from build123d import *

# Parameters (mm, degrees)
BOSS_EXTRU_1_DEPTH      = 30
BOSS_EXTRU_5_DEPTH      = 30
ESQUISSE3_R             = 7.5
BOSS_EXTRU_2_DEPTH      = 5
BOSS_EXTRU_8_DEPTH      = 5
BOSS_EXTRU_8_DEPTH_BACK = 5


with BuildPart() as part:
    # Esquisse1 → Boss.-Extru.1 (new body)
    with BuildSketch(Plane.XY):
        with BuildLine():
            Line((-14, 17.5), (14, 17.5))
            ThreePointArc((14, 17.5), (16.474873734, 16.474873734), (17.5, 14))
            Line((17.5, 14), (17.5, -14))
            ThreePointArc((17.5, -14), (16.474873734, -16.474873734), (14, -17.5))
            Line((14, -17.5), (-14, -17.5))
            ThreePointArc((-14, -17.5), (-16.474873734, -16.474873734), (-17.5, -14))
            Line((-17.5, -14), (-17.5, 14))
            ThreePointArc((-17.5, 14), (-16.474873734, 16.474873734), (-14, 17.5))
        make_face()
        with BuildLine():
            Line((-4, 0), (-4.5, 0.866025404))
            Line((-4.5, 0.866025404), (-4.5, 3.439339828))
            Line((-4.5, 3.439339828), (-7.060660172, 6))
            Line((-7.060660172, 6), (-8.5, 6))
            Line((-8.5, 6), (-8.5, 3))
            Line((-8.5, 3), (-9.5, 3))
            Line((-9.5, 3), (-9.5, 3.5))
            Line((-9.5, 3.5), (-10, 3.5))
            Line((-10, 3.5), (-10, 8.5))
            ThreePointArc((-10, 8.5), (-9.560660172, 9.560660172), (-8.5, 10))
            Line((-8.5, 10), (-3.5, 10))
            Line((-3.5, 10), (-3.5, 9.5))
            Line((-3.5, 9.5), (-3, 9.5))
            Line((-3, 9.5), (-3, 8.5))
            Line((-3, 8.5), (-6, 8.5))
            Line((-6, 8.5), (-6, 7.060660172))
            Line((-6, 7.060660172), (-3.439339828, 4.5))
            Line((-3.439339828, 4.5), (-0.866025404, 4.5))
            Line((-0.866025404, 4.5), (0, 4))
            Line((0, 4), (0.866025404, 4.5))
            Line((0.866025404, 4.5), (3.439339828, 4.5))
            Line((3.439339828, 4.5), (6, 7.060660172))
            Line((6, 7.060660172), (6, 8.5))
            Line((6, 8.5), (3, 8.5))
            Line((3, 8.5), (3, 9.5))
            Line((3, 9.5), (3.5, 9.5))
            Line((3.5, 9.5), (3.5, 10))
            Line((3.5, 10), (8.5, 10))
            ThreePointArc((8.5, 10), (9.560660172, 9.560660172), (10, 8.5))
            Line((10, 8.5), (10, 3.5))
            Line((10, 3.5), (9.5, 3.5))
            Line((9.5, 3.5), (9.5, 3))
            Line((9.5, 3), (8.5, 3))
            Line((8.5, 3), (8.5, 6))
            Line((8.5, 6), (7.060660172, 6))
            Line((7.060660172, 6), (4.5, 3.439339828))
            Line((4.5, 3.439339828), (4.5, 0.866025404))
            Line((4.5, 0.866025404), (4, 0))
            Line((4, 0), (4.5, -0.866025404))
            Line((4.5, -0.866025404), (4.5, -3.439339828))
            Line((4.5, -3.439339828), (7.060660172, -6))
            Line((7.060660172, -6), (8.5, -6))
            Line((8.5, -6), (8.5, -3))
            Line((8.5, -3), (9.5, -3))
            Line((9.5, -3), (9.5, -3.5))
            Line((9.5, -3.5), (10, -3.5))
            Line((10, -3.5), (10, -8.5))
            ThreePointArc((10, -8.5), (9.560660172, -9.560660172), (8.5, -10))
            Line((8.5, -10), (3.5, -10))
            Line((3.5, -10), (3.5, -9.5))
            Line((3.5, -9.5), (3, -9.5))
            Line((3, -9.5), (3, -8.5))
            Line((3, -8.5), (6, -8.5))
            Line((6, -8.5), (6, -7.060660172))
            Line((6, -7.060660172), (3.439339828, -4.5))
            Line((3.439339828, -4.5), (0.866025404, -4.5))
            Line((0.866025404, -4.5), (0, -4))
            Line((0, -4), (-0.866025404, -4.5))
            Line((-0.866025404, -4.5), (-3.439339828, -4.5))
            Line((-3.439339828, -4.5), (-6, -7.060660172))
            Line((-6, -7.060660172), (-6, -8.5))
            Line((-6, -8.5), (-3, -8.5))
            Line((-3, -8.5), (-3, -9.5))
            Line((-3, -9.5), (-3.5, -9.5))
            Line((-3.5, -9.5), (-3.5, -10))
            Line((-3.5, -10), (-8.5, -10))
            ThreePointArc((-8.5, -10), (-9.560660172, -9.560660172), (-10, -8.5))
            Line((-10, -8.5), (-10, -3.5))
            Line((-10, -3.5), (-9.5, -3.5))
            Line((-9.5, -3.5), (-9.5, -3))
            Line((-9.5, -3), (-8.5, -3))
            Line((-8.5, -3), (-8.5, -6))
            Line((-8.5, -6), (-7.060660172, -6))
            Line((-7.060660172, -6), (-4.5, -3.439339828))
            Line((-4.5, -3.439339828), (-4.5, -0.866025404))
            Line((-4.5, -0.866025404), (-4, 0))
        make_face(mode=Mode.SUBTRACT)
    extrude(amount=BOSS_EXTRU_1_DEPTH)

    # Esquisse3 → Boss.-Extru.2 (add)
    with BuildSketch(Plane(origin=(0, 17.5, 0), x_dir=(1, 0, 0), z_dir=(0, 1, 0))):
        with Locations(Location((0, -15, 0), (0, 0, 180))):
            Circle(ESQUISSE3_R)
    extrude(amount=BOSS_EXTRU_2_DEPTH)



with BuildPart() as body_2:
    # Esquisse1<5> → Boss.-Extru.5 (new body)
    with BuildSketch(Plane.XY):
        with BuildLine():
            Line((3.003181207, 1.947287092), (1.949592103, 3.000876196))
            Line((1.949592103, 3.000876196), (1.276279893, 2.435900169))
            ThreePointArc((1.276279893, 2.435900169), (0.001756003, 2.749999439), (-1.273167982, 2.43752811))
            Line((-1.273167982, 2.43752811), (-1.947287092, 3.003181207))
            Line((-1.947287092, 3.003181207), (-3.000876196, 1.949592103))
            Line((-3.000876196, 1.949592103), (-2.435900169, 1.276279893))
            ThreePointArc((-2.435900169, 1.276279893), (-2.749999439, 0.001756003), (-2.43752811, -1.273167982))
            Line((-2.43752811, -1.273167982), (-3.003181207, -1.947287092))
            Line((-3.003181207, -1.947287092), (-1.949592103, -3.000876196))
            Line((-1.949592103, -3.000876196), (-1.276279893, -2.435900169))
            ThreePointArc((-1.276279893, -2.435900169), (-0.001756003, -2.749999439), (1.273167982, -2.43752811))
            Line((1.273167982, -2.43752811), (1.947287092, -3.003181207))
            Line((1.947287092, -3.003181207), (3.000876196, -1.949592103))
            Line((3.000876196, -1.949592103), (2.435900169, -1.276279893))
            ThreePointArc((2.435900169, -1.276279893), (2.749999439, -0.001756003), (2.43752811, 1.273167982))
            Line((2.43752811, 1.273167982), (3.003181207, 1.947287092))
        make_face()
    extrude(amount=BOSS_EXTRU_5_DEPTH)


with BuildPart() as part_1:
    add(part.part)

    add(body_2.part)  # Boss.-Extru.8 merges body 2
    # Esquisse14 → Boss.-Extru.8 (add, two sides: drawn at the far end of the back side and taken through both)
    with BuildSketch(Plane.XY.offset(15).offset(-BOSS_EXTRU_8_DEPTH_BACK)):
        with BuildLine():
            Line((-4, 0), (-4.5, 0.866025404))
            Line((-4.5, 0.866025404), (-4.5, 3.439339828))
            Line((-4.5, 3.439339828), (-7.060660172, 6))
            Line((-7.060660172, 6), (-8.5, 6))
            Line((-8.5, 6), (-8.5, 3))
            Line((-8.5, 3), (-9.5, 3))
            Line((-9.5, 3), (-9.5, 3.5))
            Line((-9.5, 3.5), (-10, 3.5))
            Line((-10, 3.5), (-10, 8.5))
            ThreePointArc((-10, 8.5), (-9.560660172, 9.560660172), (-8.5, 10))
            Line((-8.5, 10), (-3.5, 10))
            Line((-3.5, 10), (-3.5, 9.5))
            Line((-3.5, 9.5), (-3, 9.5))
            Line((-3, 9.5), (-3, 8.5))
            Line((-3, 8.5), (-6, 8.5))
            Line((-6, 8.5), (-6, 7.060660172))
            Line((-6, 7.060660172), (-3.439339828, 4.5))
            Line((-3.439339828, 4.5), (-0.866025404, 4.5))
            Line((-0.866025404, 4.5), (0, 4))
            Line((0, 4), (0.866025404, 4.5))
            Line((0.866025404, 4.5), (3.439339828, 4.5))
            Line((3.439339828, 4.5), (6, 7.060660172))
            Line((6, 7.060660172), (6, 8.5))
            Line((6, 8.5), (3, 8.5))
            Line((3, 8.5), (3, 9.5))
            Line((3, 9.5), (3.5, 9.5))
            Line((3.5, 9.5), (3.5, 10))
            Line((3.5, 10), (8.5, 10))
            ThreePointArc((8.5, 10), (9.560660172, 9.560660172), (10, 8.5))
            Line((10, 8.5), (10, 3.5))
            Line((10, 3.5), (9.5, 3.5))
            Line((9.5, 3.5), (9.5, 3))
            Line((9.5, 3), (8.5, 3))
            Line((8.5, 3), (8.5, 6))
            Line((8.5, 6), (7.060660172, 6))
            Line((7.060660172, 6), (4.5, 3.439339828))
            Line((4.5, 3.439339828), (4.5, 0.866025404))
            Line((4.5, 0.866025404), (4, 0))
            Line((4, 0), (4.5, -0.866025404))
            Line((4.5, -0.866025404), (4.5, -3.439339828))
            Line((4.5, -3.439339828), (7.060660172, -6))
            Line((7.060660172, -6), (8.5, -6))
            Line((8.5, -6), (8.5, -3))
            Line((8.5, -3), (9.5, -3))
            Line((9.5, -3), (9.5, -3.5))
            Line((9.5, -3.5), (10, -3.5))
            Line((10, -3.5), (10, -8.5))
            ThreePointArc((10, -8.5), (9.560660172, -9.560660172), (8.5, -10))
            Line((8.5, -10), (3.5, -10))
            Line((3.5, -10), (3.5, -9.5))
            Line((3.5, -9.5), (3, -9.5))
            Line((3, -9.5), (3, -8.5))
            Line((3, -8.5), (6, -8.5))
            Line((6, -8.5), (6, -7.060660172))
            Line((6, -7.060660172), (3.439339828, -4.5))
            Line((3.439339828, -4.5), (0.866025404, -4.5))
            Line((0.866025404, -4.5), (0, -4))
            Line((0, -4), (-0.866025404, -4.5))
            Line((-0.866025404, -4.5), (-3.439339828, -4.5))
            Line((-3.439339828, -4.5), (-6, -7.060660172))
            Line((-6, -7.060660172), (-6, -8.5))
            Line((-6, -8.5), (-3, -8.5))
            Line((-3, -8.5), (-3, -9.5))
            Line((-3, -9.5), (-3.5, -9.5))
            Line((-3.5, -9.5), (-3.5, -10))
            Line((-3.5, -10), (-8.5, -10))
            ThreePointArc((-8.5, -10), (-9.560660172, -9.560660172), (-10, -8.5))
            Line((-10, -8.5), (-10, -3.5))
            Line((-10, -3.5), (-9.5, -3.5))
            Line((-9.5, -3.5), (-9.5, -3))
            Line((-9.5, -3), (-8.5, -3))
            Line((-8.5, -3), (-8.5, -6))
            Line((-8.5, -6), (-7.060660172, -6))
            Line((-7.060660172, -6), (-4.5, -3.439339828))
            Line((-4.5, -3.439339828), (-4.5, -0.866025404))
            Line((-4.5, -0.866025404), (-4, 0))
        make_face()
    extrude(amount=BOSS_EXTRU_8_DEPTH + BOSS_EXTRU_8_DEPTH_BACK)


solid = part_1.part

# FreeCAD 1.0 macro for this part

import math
import FreeCAD as App
import Part
import Sketcher

V = App.Vector
Q = App.Units.Quantity

doc = App.newDocument("Part")
body = doc.addObject("PartDesign::Body", "Body")

sketch1 = doc.addObject("Sketcher::SketchObject", "Sketch")
body.addObject(sketch1)
sketch1.AttachmentSupport = (doc.XY_Plane, [""])
sketch1.MapMode = "FlatFace"
sketch1.addGeometry([
    Part.LineSegment(V(14, 17.5, 0), V(-14, 17.5, 0)),
    Part.ArcOfCircle(Part.Circle(V(-14, 14, 0), V(0, 0, 1), 3.5), math.radians(90), math.radians(180)),
    Part.LineSegment(V(-17.5, 14, 0), V(-17.5, -14, 0)),
    Part.ArcOfCircle(Part.Circle(V(-14, -14, 0), V(0, 0, 1), 3.5), math.radians(-180), math.radians(-90)),
    Part.LineSegment(V(-14, -17.5, 0), V(14, -17.5, 0)),
    Part.ArcOfCircle(Part.Circle(V(14, -14, 0), V(0, 0, 1), 3.5), math.radians(-90), math.radians(0)),
    Part.LineSegment(V(17.5, -14, 0), V(17.5, 14, 0)),
    Part.ArcOfCircle(Part.Circle(V(14, 14, 0), V(0, 0, 1), 3.5), math.radians(0), math.radians(90)),
    Part.LineSegment(V(-4, 0, 0), V(-4.5, 0.866025, 0)),
    Part.LineSegment(V(-4.5, 0.866025, 0), V(-4.5, 3.43934, 0)),
    Part.LineSegment(V(-4.5, 3.43934, 0), V(-7.06066, 6, 0)),
    Part.LineSegment(V(-7.06066, 6, 0), V(-8.5, 6, 0)),
    Part.LineSegment(V(-8.5, 6, 0), V(-8.5, 3, 0)),
    Part.LineSegment(V(-8.5, 3, 0), V(-9.5, 3, 0)),
    Part.LineSegment(V(-9.5, 3, 0), V(-9.5, 3.5, 0)),
    Part.LineSegment(V(-9.5, 3.5, 0), V(-10, 3.5, 0)),
    Part.LineSegment(V(-10, 3.5, 0), V(-10, 8.5, 0)),
    Part.ArcOfCircle(Part.Circle(V(-8.5, 8.5, 0), V(0, 0, 1), 1.5), math.radians(90), math.radians(180)),
    Part.LineSegment(V(-8.5, 10, 0), V(-3.5, 10, 0)),
    Part.LineSegment(V(-3.5, 10, 0), V(-3.5, 9.5, 0)),
    Part.LineSegment(V(-3.5, 9.5, 0), V(-3, 9.5, 0)),
    Part.LineSegment(V(-3, 9.5, 0), V(-3, 8.5, 0)),
    Part.LineSegment(V(-3, 8.5, 0), V(-6, 8.5, 0)),
    Part.LineSegment(V(-6, 8.5, 0), V(-6, 7.06066, 0)),
    Part.LineSegment(V(-6, 7.06066, 0), V(-3.43934, 4.5, 0)),
    Part.LineSegment(V(-3.43934, 4.5, 0), V(-0.866025, 4.5, 0)),
    Part.LineSegment(V(-0.866025, 4.5, 0), V(0, 4, 0)),
    Part.LineSegment(V(0, 4, 0), V(0.866025, 4.5, 0)),
    Part.LineSegment(V(0.866025, 4.5, 0), V(3.43934, 4.5, 0)),
    Part.LineSegment(V(3.43934, 4.5, 0), V(6, 7.06066, 0)),
    Part.LineSegment(V(6, 7.06066, 0), V(6, 8.5, 0)),
    Part.LineSegment(V(6, 8.5, 0), V(3, 8.5, 0)),
    Part.LineSegment(V(3, 8.5, 0), V(3, 9.5, 0)),
    Part.LineSegment(V(3, 9.5, 0), V(3.5, 9.5, 0)),
    Part.LineSegment(V(3.5, 9.5, 0), V(3.5, 10, 0)),
    Part.LineSegment(V(3.5, 10, 0), V(8.5, 10, 0)),
    Part.ArcOfCircle(Part.Circle(V(8.5, 8.5, 0), V(0, 0, 1), 1.5), math.radians(0), math.radians(90)),
    Part.LineSegment(V(10, 8.5, 0), V(10, 3.5, 0)),
    Part.LineSegment(V(10, 3.5, 0), V(9.5, 3.5, 0)),
    Part.LineSegment(V(9.5, 3.5, 0), V(9.5, 3, 0)),
    Part.LineSegment(V(9.5, 3, 0), V(8.5, 3, 0)),
    Part.LineSegment(V(8.5, 3, 0), V(8.5, 6, 0)),
    Part.LineSegment(V(8.5, 6, 0), V(7.06066, 6, 0)),
    Part.LineSegment(V(7.06066, 6, 0), V(4.5, 3.43934, 0)),
    Part.LineSegment(V(4.5, 3.43934, 0), V(4.5, 0.866025, 0)),
    Part.LineSegment(V(4.5, 0.866025, 0), V(4, 0, 0)),
    Part.LineSegment(V(4, 0, 0), V(4.5, -0.866025, 0)),
    Part.LineSegment(V(4.5, -0.866025, 0), V(4.5, -3.43934, 0)),
    Part.LineSegment(V(4.5, -3.43934, 0), V(7.06066, -6, 0)),
    Part.LineSegment(V(7.06066, -6, 0), V(8.5, -6, 0)),
    Part.LineSegment(V(8.5, -6, 0), V(8.5, -3, 0)),
    Part.LineSegment(V(8.5, -3, 0), V(9.5, -3, 0)),
    Part.LineSegment(V(9.5, -3, 0), V(9.5, -3.5, 0)),
    Part.LineSegment(V(9.5, -3.5, 0), V(10, -3.5, 0)),
    Part.LineSegment(V(10, -3.5, 0), V(10, -8.5, 0)),
    Part.ArcOfCircle(Part.Circle(V(8.5, -8.5, 0), V(0, 0, 1), 1.5), math.radians(-90), math.radians(0)),
    Part.LineSegment(V(8.5, -10, 0), V(3.5, -10, 0)),
    Part.LineSegment(V(3.5, -10, 0), V(3.5, -9.5, 0)),
    Part.LineSegment(V(3.5, -9.5, 0), V(3, -9.5, 0)),
    Part.LineSegment(V(3, -9.5, 0), V(3, -8.5, 0)),
    Part.LineSegment(V(3, -8.5, 0), V(6, -8.5, 0)),
    Part.LineSegment(V(6, -8.5, 0), V(6, -7.06066, 0)),
    Part.LineSegment(V(6, -7.06066, 0), V(3.43934, -4.5, 0)),
    Part.LineSegment(V(3.43934, -4.5, 0), V(0.866025, -4.5, 0)),
    Part.LineSegment(V(0.866025, -4.5, 0), V(0, -4, 0)),
    Part.LineSegment(V(0, -4, 0), V(-0.866025, -4.5, 0)),
    Part.LineSegment(V(-0.866025, -4.5, 0), V(-3.43934, -4.5, 0)),
    Part.LineSegment(V(-3.43934, -4.5, 0), V(-6, -7.06066, 0)),
    Part.LineSegment(V(-6, -7.06066, 0), V(-6, -8.5, 0)),
    Part.LineSegment(V(-6, -8.5, 0), V(-3, -8.5, 0)),
    Part.LineSegment(V(-3, -8.5, 0), V(-3, -9.5, 0)),
    Part.LineSegment(V(-3, -9.5, 0), V(-3.5, -9.5, 0)),
    Part.LineSegment(V(-3.5, -9.5, 0), V(-3.5, -10, 0)),
    Part.LineSegment(V(-3.5, -10, 0), V(-8.5, -10, 0)),
    Part.ArcOfCircle(Part.Circle(V(-8.5, -8.5, 0), V(0, 0, 1), 1.5), math.radians(180), math.radians(270)),
    Part.LineSegment(V(-10, -8.5, 0), V(-10, -3.5, 0)),
    Part.LineSegment(V(-10, -3.5, 0), V(-9.5, -3.5, 0)),
    Part.LineSegment(V(-9.5, -3.5, 0), V(-9.5, -3, 0)),
    Part.LineSegment(V(-9.5, -3, 0), V(-8.5, -3, 0)),
    Part.LineSegment(V(-8.5, -3, 0), V(-8.5, -6, 0)),
    Part.LineSegment(V(-8.5, -6, 0), V(-7.06066, -6, 0)),
    Part.LineSegment(V(-7.06066, -6, 0), V(-4.5, -3.43934, 0)),
    Part.LineSegment(V(-4.5, -3.43934, 0), V(-4.5, -0.866025, 0)),
    Part.LineSegment(V(-4.5, -0.866025, 0), V(-4, 0, 0)),
], False)
sketch1.addConstraint([
    Sketcher.Constraint("Tangent", 0, 2, 1, 1),
    Sketcher.Constraint("Tangent", 1, 2, 2, 1),
    Sketcher.Constraint("Tangent", 2, 2, 3, 1),
    Sketcher.Constraint("Tangent", 3, 2, 4, 1),
    Sketcher.Constraint("Tangent", 4, 2, 5, 1),
    Sketcher.Constraint("Tangent", 5, 2, 6, 1),
    Sketcher.Constraint("Tangent", 6, 2, 7, 1),
    Sketcher.Constraint("Tangent", 7, 2, 0, 1),
    Sketcher.Constraint("Coincident", 8, 2, 9, 1),
    Sketcher.Constraint("Coincident", 9, 2, 10, 1),
    Sketcher.Constraint("Coincident", 10, 2, 11, 1),
    Sketcher.Constraint("Coincident", 11, 2, 12, 1),
    Sketcher.Constraint("Coincident", 12, 2, 13, 1),
    Sketcher.Constraint("Coincident", 13, 2, 14, 1),
    Sketcher.Constraint("Coincident", 14, 2, 15, 1),
    Sketcher.Constraint("Coincident", 15, 2, 16, 1),
    Sketcher.Constraint("Tangent", 16, 2, 17, 2),
    Sketcher.Constraint("Tangent", 17, 1, 18, 1),
    Sketcher.Constraint("Coincident", 18, 2, 19, 1),
    Sketcher.Constraint("Coincident", 19, 2, 20, 1),
    Sketcher.Constraint("Coincident", 20, 2, 21, 1),
    Sketcher.Constraint("Coincident", 21, 2, 22, 1),
    Sketcher.Constraint("Coincident", 22, 2, 23, 1),
    Sketcher.Constraint("Coincident", 23, 2, 24, 1),
    Sketcher.Constraint("Coincident", 24, 2, 25, 1),
    Sketcher.Constraint("Coincident", 25, 2, 26, 1),
    Sketcher.Constraint("Coincident", 26, 2, 27, 1),
    Sketcher.Constraint("Coincident", 27, 2, 28, 1),
    Sketcher.Constraint("Coincident", 28, 2, 29, 1),
    Sketcher.Constraint("Coincident", 29, 2, 30, 1),
    Sketcher.Constraint("Coincident", 30, 2, 31, 1),
    Sketcher.Constraint("Coincident", 31, 2, 32, 1),
    Sketcher.Constraint("Coincident", 32, 2, 33, 1),
    Sketcher.Constraint("Coincident", 33, 2, 34, 1),
    Sketcher.Constraint("Coincident", 34, 2, 35, 1),
    Sketcher.Constraint("Tangent", 35, 2, 36, 2),
    Sketcher.Constraint("Tangent", 36, 1, 37, 1),
    Sketcher.Constraint("Coincident", 37, 2, 38, 1),
    Sketcher.Constraint("Coincident", 38, 2, 39, 1),
    Sketcher.Constraint("Coincident", 39, 2, 40, 1),
    Sketcher.Constraint("Coincident", 40, 2, 41, 1),
    Sketcher.Constraint("Coincident", 41, 2, 42, 1),
    Sketcher.Constraint("Coincident", 42, 2, 43, 1),
    Sketcher.Constraint("Coincident", 43, 2, 44, 1),
    Sketcher.Constraint("Coincident", 44, 2, 45, 1),
    Sketcher.Constraint("Coincident", 45, 2, 46, 1),
    Sketcher.Constraint("Coincident", 46, 2, 47, 1),
    Sketcher.Constraint("Coincident", 47, 2, 48, 1),
    Sketcher.Constraint("Coincident", 48, 2, 49, 1),
    Sketcher.Constraint("Coincident", 49, 2, 50, 1),
    Sketcher.Constraint("Coincident", 50, 2, 51, 1),
    Sketcher.Constraint("Coincident", 51, 2, 52, 1),
    Sketcher.Constraint("Coincident", 52, 2, 53, 1),
    Sketcher.Constraint("Coincident", 53, 2, 54, 1),
    Sketcher.Constraint("Tangent", 54, 2, 55, 2),
    Sketcher.Constraint("Tangent", 55, 1, 56, 1),
    Sketcher.Constraint("Coincident", 56, 2, 57, 1),
    Sketcher.Constraint("Coincident", 57, 2, 58, 1),
    Sketcher.Constraint("Coincident", 58, 2, 59, 1),
    Sketcher.Constraint("Coincident", 59, 2, 60, 1),
    Sketcher.Constraint("Coincident", 60, 2, 61, 1),
    Sketcher.Constraint("Coincident", 61, 2, 62, 1),
    Sketcher.Constraint("Coincident", 62, 2, 63, 1),
    Sketcher.Constraint("Coincident", 63, 2, 64, 1),
    Sketcher.Constraint("Coincident", 64, 2, 65, 1),
    Sketcher.Constraint("Coincident", 65, 2, 66, 1),
    Sketcher.Constraint("Coincident", 66, 2, 67, 1),
    Sketcher.Constraint("Coincident", 67, 2, 68, 1),
    Sketcher.Constraint("Coincident", 68, 2, 69, 1),
    Sketcher.Constraint("Coincident", 69, 2, 70, 1),
    Sketcher.Constraint("Coincident", 70, 2, 71, 1),
    Sketcher.Constraint("Coincident", 71, 2, 72, 1),
    Sketcher.Constraint("Coincident", 72, 2, 73, 1),
    Sketcher.Constraint("Tangent", 73, 2, 74, 2),
    Sketcher.Constraint("Tangent", 74, 1, 75, 1),
    Sketcher.Constraint("Coincident", 75, 2, 76, 1),
    Sketcher.Constraint("Coincident", 76, 2, 77, 1),
    Sketcher.Constraint("Coincident", 77, 2, 78, 1),
    Sketcher.Constraint("Coincident", 78, 2, 79, 1),
    Sketcher.Constraint("Coincident", 79, 2, 80, 1),
    Sketcher.Constraint("Coincident", 80, 2, 81, 1),
    Sketcher.Constraint("Coincident", 81, 2, 82, 1),
    Sketcher.Constraint("Coincident", 82, 2, 83, 1),
    Sketcher.Constraint("Coincident", 83, 2, 8, 1),
    Sketcher.Constraint("Horizontal", 0),
    Sketcher.Constraint("Vertical", 2),
    Sketcher.Constraint("Horizontal", 4),
    Sketcher.Constraint("Vertical", 6),
    Sketcher.Constraint("Vertical", 9),
    Sketcher.Constraint("Horizontal", 11),
    Sketcher.Constraint("Vertical", 12),
    Sketcher.Constraint("Horizontal", 13),
    Sketcher.Constraint("Vertical", 14),
    Sketcher.Constraint("Horizontal", 15),
    Sketcher.Constraint("Vertical", 16),
    Sketcher.Constraint("Horizontal", 18),
    Sketcher.Constraint("Vertical", 19),
    Sketcher.Constraint("Horizontal", 20),
    Sketcher.Constraint("Vertical", 21),
    Sketcher.Constraint("Horizontal", 22),
    Sketcher.Constraint("Vertical", 23),
    Sketcher.Constraint("Horizontal", 25),
    Sketcher.Constraint("Horizontal", 28),
    Sketcher.Constraint("Vertical", 30),
    Sketcher.Constraint("Horizontal", 31),
    Sketcher.Constraint("Vertical", 32),
    Sketcher.Constraint("Horizontal", 33),
    Sketcher.Constraint("Vertical", 34),
    Sketcher.Constraint("Horizontal", 35),
    Sketcher.Constraint("Vertical", 37),
    Sketcher.Constraint("Horizontal", 38),
    Sketcher.Constraint("Vertical", 39),
    Sketcher.Constraint("Horizontal", 40),
    Sketcher.Constraint("Vertical", 41),
    Sketcher.Constraint("Horizontal", 42),
    Sketcher.Constraint("Vertical", 44),
    Sketcher.Constraint("Vertical", 47),
    Sketcher.Constraint("Horizontal", 49),
    Sketcher.Constraint("Vertical", 50),
    Sketcher.Constraint("Horizontal", 51),
    Sketcher.Constraint("Vertical", 52),
    Sketcher.Constraint("Horizontal", 53),
    Sketcher.Constraint("Vertical", 54),
    Sketcher.Constraint("Horizontal", 56),
    Sketcher.Constraint("Vertical", 57),
    Sketcher.Constraint("Horizontal", 58),
    Sketcher.Constraint("Vertical", 59),
    Sketcher.Constraint("Horizontal", 60),
    Sketcher.Constraint("Vertical", 61),
    Sketcher.Constraint("Horizontal", 63),
    Sketcher.Constraint("Horizontal", 66),
    Sketcher.Constraint("Vertical", 68),
    Sketcher.Constraint("Horizontal", 69),
    Sketcher.Constraint("Vertical", 70),
    Sketcher.Constraint("Horizontal", 71),
    Sketcher.Constraint("Vertical", 72),
    Sketcher.Constraint("Horizontal", 73),
    Sketcher.Constraint("Vertical", 75),
    Sketcher.Constraint("Horizontal", 76),
    Sketcher.Constraint("Vertical", 77),
    Sketcher.Constraint("Horizontal", 78),
    Sketcher.Constraint("Vertical", 79),
    Sketcher.Constraint("Horizontal", 80),
    Sketcher.Constraint("Vertical", 82),
    Sketcher.Constraint("Equal", 1, 3),
    Sketcher.Constraint("Equal", 3, 5),
    Sketcher.Constraint("Equal", 5, 7),
    Sketcher.Constraint("Equal", 17, 36),
    Sketcher.Constraint("Equal", 36, 55),
    Sketcher.Constraint("Equal", 55, 74),
    Sketcher.Constraint("Symmetric", 1, 3, 5, 3, -1, 1),
    Sketcher.Constraint("Symmetric", 17, 3, 55, 3, -1, 1),
    Sketcher.Constraint("Symmetric", 36, 3, 74, 3, -1, 1),
    Sketcher.Constraint("Symmetric", 8, 2, 46, 2, -1, 1),
    Sketcher.Constraint("Symmetric", 10, 2, 48, 2, -1, 1),
    Sketcher.Constraint("Symmetric", 12, 2, 50, 2, -1, 1),
    Sketcher.Constraint("Symmetric", 14, 2, 52, 2, -1, 1),
    Sketcher.Constraint("Symmetric", 19, 2, 57, 2, -1, 1),
    Sketcher.Constraint("Symmetric", 21, 2, 59, 2, -1, 1),
    Sketcher.Constraint("Symmetric", 23, 2, 61, 2, -1, 1),
    Sketcher.Constraint("Symmetric", 24, 2, 62, 2, -1, 1),
    Sketcher.Constraint("Symmetric", 26, 2, 64, 2, -1, 1),
    Sketcher.Constraint("Symmetric", 27, 2, 65, 2, -1, 1),
    Sketcher.Constraint("Symmetric", 29, 2, 67, 2, -1, 1),
    Sketcher.Constraint("Symmetric", 31, 2, 69, 2, -1, 1),
    Sketcher.Constraint("Symmetric", 33, 2, 71, 2, -1, 1),
    Sketcher.Constraint("Symmetric", 38, 2, 76, 2, -1, 1),
    Sketcher.Constraint("Symmetric", 40, 2, 78, 2, -1, 1),
    Sketcher.Constraint("Symmetric", 42, 2, 80, 2, -1, 1),
    Sketcher.Constraint("Symmetric", 43, 2, 81, 2, -1, 1),
    Sketcher.Constraint("Symmetric", 45, 2, 83, 2, -1, 1),
    Sketcher.Constraint("Symmetric", 17, 3, 36, 3, -2),
    Sketcher.Constraint("Symmetric", 25, 2, 27, 2, -2),
    Sketcher.Constraint("Symmetric", 23, 2, 29, 2, -2),
    Sketcher.Constraint("Symmetric", 21, 2, 31, 2, -2),
    Sketcher.Constraint("Symmetric", 19, 2, 33, 2, -2),
    Sketcher.Constraint("Symmetric", 14, 2, 38, 2, -2),
    Sketcher.Constraint("Symmetric", 12, 2, 40, 2, -2),
    Sketcher.Constraint("Symmetric", 10, 2, 42, 2, -2),
    Sketcher.Constraint("Symmetric", 9, 2, 43, 2, -2),
    Sketcher.Constraint("PointOnObject", 26, 2, -2),
    Sketcher.Constraint("PointOnObject", 45, 2, -1),
    Sketcher.Constraint("Parallel", 10, 24),
    Sketcher.Constraint("Perpendicular", 8, 27),
    Sketcher.Constraint("Perpendicular", 24, 29),
    Sketcher.Constraint("Parallel", 29, 43),
    Sketcher.Constraint("Perpendicular", 26, 45),
    Sketcher.Constraint("Perpendicular", 43, 48),
    Sketcher.Constraint("Perpendicular", 45, 64),
    Sketcher.Constraint("Perpendicular", 62, 67),
    Sketcher.Constraint("Perpendicular", 64, 83),
    Sketcher.Constraint("Horizontal", 16, 2, 21, 2),
    Sketcher.Constraint("Vertical", 74, 3, 11, 2),
    Sketcher.Constraint("Equal", 15, 20),
    Sketcher.Constraint("Equal", 4, 2),
    Sketcher.Constraint("Equal", 66, 9),
    Sketcher.Constraint("Equal", 69, 12),
    Sketcher.Constraint("Equal", 76, 14),
    Sketcher.Constraint("Equal", 73, 16),
    Sketcher.Constraint("Equal", 14, 19),
    Sketcher.Constraint("Equal", 80, 23),
    Sketcher.Constraint("Equal", 10, 24),
    Sketcher.Constraint("Equal", 8, 26),
    Sketcher.Constraint("Radius", 1, 3.5),
    Sketcher.Constraint("Radius", 17, 1.5),
    Sketcher.Constraint("DistanceX", 0, 2, 0, 1, 28.0),
    Sketcher.Constraint("DistanceX", 13, 2, 13, 1, 1.0),
    Sketcher.Constraint("DistanceX", 18, 1, 18, 2, 5.0),
    Sketcher.Constraint("DistanceX", 22, 2, 22, 1, 3.0),
    Sketcher.Constraint("Angle", 8, Q("120 deg")),
    Sketcher.Constraint("Distance", 8, 1.0),
    Sketcher.Constraint("DistanceY", -1, 1, 10, 2, 6.0),
    Sketcher.Constraint("DistanceY", -1, 1, 26, 2, 4.0),
    Sketcher.Constraint("DistanceX", 11, 2, 11, 1, 1.43934),
])
pad1 = doc.addObject("PartDesign::Pad", "Pad")
body.addObject(pad1)
pad1.Profile = sketch1
pad1.Length = 30

sketch2 = doc.addObject("Sketcher::SketchObject", "Sketch001")
body.addObject(sketch2)
sketch2.AttachmentSupport = (doc.XZ_Plane, [""])
sketch2.MapMode = "FlatFace"
sketch2.AttachmentOffset = App.Placement(V(0, 0, -17.5), App.Rotation())
sketch2.addGeometry(Part.Circle(V(0, 15, 0), V(0, 0, 1), 7.5), False)
sketch2.addConstraint([
    Sketcher.Constraint("PointOnObject", 0, 3, -2),
    Sketcher.Constraint("Diameter", 0, 15.0),
    Sketcher.Constraint("DistanceY", -1, 1, 0, 3, 15.0),
])
pad2 = doc.addObject("PartDesign::Pad", "Pad001")
body.addObject(pad2)
pad2.Profile = sketch2
pad2.Length = 5
pad2.Reversed = True
body2 = doc.addObject("PartDesign::Body", "Body001")

sketch3 = doc.addObject("Sketcher::SketchObject", "Sketch002")
body2.addObject(sketch3)
sketch3.AttachmentSupport = (doc.getObject("XY_Plane001"), [""])
sketch3.MapMode = "FlatFace"
sketch3.addGeometry([
    Part.LineSegment(V(3.003181, 1.947287, 0), V(1.949592, 3.000876, 0)),
    Part.LineSegment(V(1.949592, 3.000876, 0), V(1.27628, 2.4359, 0)),
    Part.ArcOfCircle(Part.Circle(V(0, 0, 0), V(0, 0, 1), 2.75), math.radians(62.347894), math.radians(117.578934)),
    Part.LineSegment(V(-1.273168, 2.437528, 0), V(-1.947287, 3.003181, 0)),
    Part.LineSegment(V(-1.947287, 3.003181, 0), V(-3.000876, 1.949592, 0)),
    Part.LineSegment(V(-3.000876, 1.949592, 0), V(-2.4359, 1.27628, 0)),
    Part.ArcOfCircle(Part.Circle(V(0, 0, 0), V(0, 0, 1), 2.75), math.radians(152.347894), math.radians(207.578934)),
    Part.LineSegment(V(-2.437528, -1.273168, 0), V(-3.003181, -1.947287, 0)),
    Part.LineSegment(V(-3.003181, -1.947287, 0), V(-1.949592, -3.000876, 0)),
    Part.LineSegment(V(-1.949592, -3.000876, 0), V(-1.27628, -2.4359, 0)),
    Part.ArcOfCircle(Part.Circle(V(0, 0, 0), V(0, 0, 1), 2.75), math.radians(-117.652106), math.radians(-62.421066)),
    Part.LineSegment(V(1.273168, -2.437528, 0), V(1.947287, -3.003181, 0)),
    Part.LineSegment(V(1.947287, -3.003181, 0), V(3.000876, -1.949592, 0)),
    Part.LineSegment(V(3.000876, -1.949592, 0), V(2.4359, -1.27628, 0)),
    Part.ArcOfCircle(Part.Circle(V(0, 0, 0), V(0, 0, 1), 2.75), math.radians(-27.652106), math.radians(27.578934)),
    Part.LineSegment(V(2.437528, 1.273168, 0), V(3.003181, 1.947287, 0)),
], False)
sketch3.addConstraint([
    Sketcher.Constraint("Coincident", 0, 2, 1, 1),
    Sketcher.Constraint("Coincident", 1, 2, 2, 1),
    Sketcher.Constraint("Coincident", 2, 2, 3, 1),
    Sketcher.Constraint("Coincident", 3, 2, 4, 1),
    Sketcher.Constraint("Coincident", 4, 2, 5, 1),
    Sketcher.Constraint("Coincident", 5, 2, 6, 1),
    Sketcher.Constraint("Coincident", 6, 2, 7, 1),
    Sketcher.Constraint("Coincident", 7, 2, 8, 1),
    Sketcher.Constraint("Coincident", 8, 2, 9, 1),
    Sketcher.Constraint("Coincident", 9, 2, 10, 1),
    Sketcher.Constraint("Coincident", 10, 2, 11, 1),
    Sketcher.Constraint("Coincident", 11, 2, 12, 1),
    Sketcher.Constraint("Coincident", 12, 2, 13, 1),
    Sketcher.Constraint("Coincident", 13, 2, 14, 1),
    Sketcher.Constraint("Coincident", 14, 2, 15, 1),
    Sketcher.Constraint("Coincident", 15, 2, 0, 1),
    Sketcher.Constraint("Coincident", 2, 3, -1, 1),
    Sketcher.Constraint("Coincident", 6, 3, -1, 1),
    Sketcher.Constraint("Coincident", 10, 3, -1, 1),
    Sketcher.Constraint("Coincident", 14, 3, -1, 1),
    Sketcher.Constraint("Equal", 2, 6),
    Sketcher.Constraint("Equal", 6, 10),
    Sketcher.Constraint("Equal", 10, 14),
    Sketcher.Constraint("Symmetric", 0, 2, 8, 2, -1, 1),
    Sketcher.Constraint("Symmetric", 3, 2, 11, 2, -1, 1),
    Sketcher.Constraint("Symmetric", 4, 2, 12, 2, -1, 1),
    Sketcher.Constraint("Symmetric", 7, 2, 15, 2, -1, 1),
    Sketcher.Constraint("Perpendicular", 0, 4),
    Sketcher.Constraint("Perpendicular", 1, 5),
    Sketcher.Constraint("Perpendicular", 3, 7),
    Sketcher.Constraint("Perpendicular", 5, 9),
    Sketcher.Constraint("Perpendicular", 7, 11),
    Sketcher.Constraint("Perpendicular", 9, 13),
    Sketcher.Constraint("Perpendicular", 11, 15),
    Sketcher.Constraint("Equal", 0, 4),
    Sketcher.Constraint("Equal", 1, 5),
    Sketcher.Constraint("Equal", 3, 7),
    Sketcher.Constraint("Angle", 0, Q("135 deg")),
    Sketcher.Constraint("Angle", 1, Q("-140 deg")),
    Sketcher.Constraint("Angle", 3, Q("140 deg")),
    Sketcher.Constraint("Radius", 2, 2.75),
    Sketcher.Constraint("Distance", 0, 1.49),
    Sketcher.Constraint("Distance", 3, 0.88),
    Sketcher.Constraint("DistanceY", -1, 1, 1, 2, 2.4359),
])
pad3 = doc.addObject("PartDesign::Pad", "Pad002")
body2.addObject(pad3)
pad3.Profile = sketch3
pad3.Length = 30
body.AllowCompound = True
doc.recompute()

boolean = doc.addObject("PartDesign::Boolean", "Boolean")
body.addObject(boolean)
boolean.Type = "Fuse"
boolean.addObjects([body2])

sketch4 = doc.addObject("Sketcher::SketchObject", "Sketch003")
body.addObject(sketch4)
sketch4.AttachmentSupport = (doc.XY_Plane, [""])
sketch4.MapMode = "FlatFace"
sketch4.AttachmentOffset = App.Placement(V(0, 0, 15), App.Rotation())
sketch4.addGeometry([
    Part.LineSegment(V(-4.5, 0.866025, 0), V(-4, 0, 0)),
    Part.LineSegment(V(-4, 0, 0), V(-4.5, -0.866025, 0)),
    Part.LineSegment(V(-4.5, -0.866025, 0), V(-4.5, -3.43934, 0)),
    Part.LineSegment(V(-4.5, -3.43934, 0), V(-7.06066, -6, 0)),
    Part.LineSegment(V(-7.06066, -6, 0), V(-8.5, -6, 0)),
    Part.LineSegment(V(-8.5, -6, 0), V(-8.5, -3, 0)),
    Part.LineSegment(V(-8.5, -3, 0), V(-9.5, -3, 0)),
    Part.LineSegment(V(-9.5, -3, 0), V(-9.5, -3.5, 0)),
    Part.LineSegment(V(-9.5, -3.5, 0), V(-10, -3.5, 0)),
    Part.LineSegment(V(-10, -3.5, 0), V(-10, -8.5, 0)),
    Part.ArcOfCircle(Part.Circle(V(-8.5, -8.5, 0), V(0, 0, 1), 1.5), math.radians(180), math.radians(270)),
    Part.LineSegment(V(-8.5, -10, 0), V(-3.5, -10, 0)),
    Part.LineSegment(V(-3.5, -10, 0), V(-3.5, -9.5, 0)),
    Part.LineSegment(V(-3.5, -9.5, 0), V(-3, -9.5, 0)),
    Part.LineSegment(V(-3, -9.5, 0), V(-3, -8.5, 0)),
    Part.LineSegment(V(-3, -8.5, 0), V(-6, -8.5, 0)),
    Part.LineSegment(V(-6, -8.5, 0), V(-6, -7.06066, 0)),
    Part.LineSegment(V(-6, -7.06066, 0), V(-3.43934, -4.5, 0)),
    Part.LineSegment(V(-3.43934, -4.5, 0), V(-0.866025, -4.5, 0)),
    Part.LineSegment(V(-0.866025, -4.5, 0), V(0, -4, 0)),
    Part.LineSegment(V(0, -4, 0), V(0.866025, -4.5, 0)),
    Part.LineSegment(V(0.866025, -4.5, 0), V(3.43934, -4.5, 0)),
    Part.LineSegment(V(3.43934, -4.5, 0), V(6, -7.06066, 0)),
    Part.LineSegment(V(6, -7.06066, 0), V(6, -8.5, 0)),
    Part.LineSegment(V(6, -8.5, 0), V(3, -8.5, 0)),
    Part.LineSegment(V(3, -8.5, 0), V(3, -9.5, 0)),
    Part.LineSegment(V(3, -9.5, 0), V(3.5, -9.5, 0)),
    Part.LineSegment(V(3.5, -9.5, 0), V(3.5, -10, 0)),
    Part.LineSegment(V(3.5, -10, 0), V(8.5, -10, 0)),
    Part.ArcOfCircle(Part.Circle(V(8.5, -8.5, 0), V(0, 0, 1), 1.5), math.radians(-90), math.radians(0)),
    Part.LineSegment(V(10, -8.5, 0), V(10, -3.5, 0)),
    Part.LineSegment(V(10, -3.5, 0), V(9.5, -3.5, 0)),
    Part.LineSegment(V(9.5, -3.5, 0), V(9.5, -3, 0)),
    Part.LineSegment(V(9.5, -3, 0), V(8.5, -3, 0)),
    Part.LineSegment(V(8.5, -3, 0), V(8.5, -6, 0)),
    Part.LineSegment(V(8.5, -6, 0), V(7.06066, -6, 0)),
    Part.LineSegment(V(7.06066, -6, 0), V(4.5, -3.43934, 0)),
    Part.LineSegment(V(4.5, -3.43934, 0), V(4.5, -0.866025, 0)),
    Part.LineSegment(V(4.5, -0.866025, 0), V(4, 0, 0)),
    Part.LineSegment(V(4, 0, 0), V(4.5, 0.866025, 0)),
    Part.LineSegment(V(4.5, 0.866025, 0), V(4.5, 3.43934, 0)),
    Part.LineSegment(V(4.5, 3.43934, 0), V(7.06066, 6, 0)),
    Part.LineSegment(V(7.06066, 6, 0), V(8.5, 6, 0)),
    Part.LineSegment(V(8.5, 6, 0), V(8.5, 3, 0)),
    Part.LineSegment(V(8.5, 3, 0), V(9.5, 3, 0)),
    Part.LineSegment(V(9.5, 3, 0), V(9.5, 3.5, 0)),
    Part.LineSegment(V(9.5, 3.5, 0), V(10, 3.5, 0)),
    Part.LineSegment(V(10, 3.5, 0), V(10, 8.5, 0)),
    Part.ArcOfCircle(Part.Circle(V(8.5, 8.5, 0), V(0, 0, 1), 1.5), math.radians(0), math.radians(90)),
    Part.LineSegment(V(8.5, 10, 0), V(3.5, 10, 0)),
    Part.LineSegment(V(3.5, 10, 0), V(3.5, 9.5, 0)),
    Part.LineSegment(V(3.5, 9.5, 0), V(3, 9.5, 0)),
    Part.LineSegment(V(3, 9.5, 0), V(3, 8.5, 0)),
    Part.LineSegment(V(3, 8.5, 0), V(6, 8.5, 0)),
    Part.LineSegment(V(6, 8.5, 0), V(6, 7.06066, 0)),
    Part.LineSegment(V(6, 7.06066, 0), V(3.43934, 4.5, 0)),
    Part.LineSegment(V(3.43934, 4.5, 0), V(0.866025, 4.5, 0)),
    Part.LineSegment(V(0.866025, 4.5, 0), V(0, 4, 0)),
    Part.LineSegment(V(0, 4, 0), V(-0.866025, 4.5, 0)),
    Part.LineSegment(V(-0.866025, 4.5, 0), V(-3.43934, 4.5, 0)),
    Part.LineSegment(V(-3.43934, 4.5, 0), V(-6, 7.06066, 0)),
    Part.LineSegment(V(-6, 7.06066, 0), V(-6, 8.5, 0)),
    Part.LineSegment(V(-6, 8.5, 0), V(-3, 8.5, 0)),
    Part.LineSegment(V(-3, 8.5, 0), V(-3, 9.5, 0)),
    Part.LineSegment(V(-3, 9.5, 0), V(-3.5, 9.5, 0)),
    Part.LineSegment(V(-3.5, 9.5, 0), V(-3.5, 10, 0)),
    Part.LineSegment(V(-3.5, 10, 0), V(-8.5, 10, 0)),
    Part.ArcOfCircle(Part.Circle(V(-8.5, 8.5, 0), V(0, 0, 1), 1.5), math.radians(90), math.radians(180)),
    Part.LineSegment(V(-10, 8.5, 0), V(-10, 3.5, 0)),
    Part.LineSegment(V(-10, 3.5, 0), V(-9.5, 3.5, 0)),
    Part.LineSegment(V(-9.5, 3.5, 0), V(-9.5, 3, 0)),
    Part.LineSegment(V(-9.5, 3, 0), V(-8.5, 3, 0)),
    Part.LineSegment(V(-8.5, 3, 0), V(-8.5, 6, 0)),
    Part.LineSegment(V(-8.5, 6, 0), V(-7.06066, 6, 0)),
    Part.LineSegment(V(-7.06066, 6, 0), V(-4.5, 3.43934, 0)),
    Part.LineSegment(V(-4.5, 3.43934, 0), V(-4.5, 0.866025, 0)),
], False)
sketch4.addConstraint([
    Sketcher.Constraint("Coincident", 0, 2, 1, 1),
    Sketcher.Constraint("Coincident", 1, 2, 2, 1),
    Sketcher.Constraint("Coincident", 2, 2, 3, 1),
    Sketcher.Constraint("Coincident", 3, 2, 4, 1),
    Sketcher.Constraint("Coincident", 4, 2, 5, 1),
    Sketcher.Constraint("Coincident", 5, 2, 6, 1),
    Sketcher.Constraint("Coincident", 6, 2, 7, 1),
    Sketcher.Constraint("Coincident", 7, 2, 8, 1),
    Sketcher.Constraint("Coincident", 8, 2, 9, 1),
    Sketcher.Constraint("Tangent", 9, 2, 10, 1),
    Sketcher.Constraint("Tangent", 10, 2, 11, 1),
    Sketcher.Constraint("Coincident", 11, 2, 12, 1),
    Sketcher.Constraint("Coincident", 12, 2, 13, 1),
    Sketcher.Constraint("Coincident", 13, 2, 14, 1),
    Sketcher.Constraint("Coincident", 14, 2, 15, 1),
    Sketcher.Constraint("Coincident", 15, 2, 16, 1),
    Sketcher.Constraint("Coincident", 16, 2, 17, 1),
    Sketcher.Constraint("Coincident", 17, 2, 18, 1),
    Sketcher.Constraint("Coincident", 18, 2, 19, 1),
    Sketcher.Constraint("Coincident", 19, 2, 20, 1),
    Sketcher.Constraint("Coincident", 20, 2, 21, 1),
    Sketcher.Constraint("Coincident", 21, 2, 22, 1),
    Sketcher.Constraint("Coincident", 22, 2, 23, 1),
    Sketcher.Constraint("Coincident", 23, 2, 24, 1),
    Sketcher.Constraint("Coincident", 24, 2, 25, 1),
    Sketcher.Constraint("Coincident", 25, 2, 26, 1),
    Sketcher.Constraint("Coincident", 26, 2, 27, 1),
    Sketcher.Constraint("Coincident", 27, 2, 28, 1),
    Sketcher.Constraint("Tangent", 28, 2, 29, 1),
    Sketcher.Constraint("Tangent", 29, 2, 30, 1),
    Sketcher.Constraint("Coincident", 30, 2, 31, 1),
    Sketcher.Constraint("Coincident", 31, 2, 32, 1),
    Sketcher.Constraint("Coincident", 32, 2, 33, 1),
    Sketcher.Constraint("Coincident", 33, 2, 34, 1),
    Sketcher.Constraint("Coincident", 34, 2, 35, 1),
    Sketcher.Constraint("Coincident", 35, 2, 36, 1),
    Sketcher.Constraint("Coincident", 36, 2, 37, 1),
    Sketcher.Constraint("Coincident", 37, 2, 38, 1),
    Sketcher.Constraint("Coincident", 38, 2, 39, 1),
    Sketcher.Constraint("Coincident", 39, 2, 40, 1),
    Sketcher.Constraint("Coincident", 40, 2, 41, 1),
    Sketcher.Constraint("Coincident", 41, 2, 42, 1),
    Sketcher.Constraint("Coincident", 42, 2, 43, 1),
    Sketcher.Constraint("Coincident", 43, 2, 44, 1),
    Sketcher.Constraint("Coincident", 44, 2, 45, 1),
    Sketcher.Constraint("Coincident", 45, 2, 46, 1),
    Sketcher.Constraint("Coincident", 46, 2, 47, 1),
    Sketcher.Constraint("Tangent", 47, 2, 48, 1),
    Sketcher.Constraint("Tangent", 48, 2, 49, 1),
    Sketcher.Constraint("Coincident", 49, 2, 50, 1),
    Sketcher.Constraint("Coincident", 50, 2, 51, 1),
    Sketcher.Constraint("Coincident", 51, 2, 52, 1),
    Sketcher.Constraint("Coincident", 52, 2, 53, 1),
    Sketcher.Constraint("Coincident", 53, 2, 54, 1),
    Sketcher.Constraint("Coincident", 54, 2, 55, 1),
    Sketcher.Constraint("Coincident", 55, 2, 56, 1),
    Sketcher.Constraint("Coincident", 56, 2, 57, 1),
    Sketcher.Constraint("Coincident", 57, 2, 58, 1),
    Sketcher.Constraint("Coincident", 58, 2, 59, 1),
    Sketcher.Constraint("Coincident", 59, 2, 60, 1),
    Sketcher.Constraint("Coincident", 60, 2, 61, 1),
    Sketcher.Constraint("Coincident", 61, 2, 62, 1),
    Sketcher.Constraint("Coincident", 62, 2, 63, 1),
    Sketcher.Constraint("Coincident", 63, 2, 64, 1),
    Sketcher.Constraint("Coincident", 64, 2, 65, 1),
    Sketcher.Constraint("Coincident", 65, 2, 66, 1),
    Sketcher.Constraint("Tangent", 66, 2, 67, 1),
    Sketcher.Constraint("Tangent", 67, 2, 68, 1),
    Sketcher.Constraint("Coincident", 68, 2, 69, 1),
    Sketcher.Constraint("Coincident", 69, 2, 70, 1),
    Sketcher.Constraint("Coincident", 70, 2, 71, 1),
    Sketcher.Constraint("Coincident", 71, 2, 72, 1),
    Sketcher.Constraint("Coincident", 72, 2, 73, 1),
    Sketcher.Constraint("Coincident", 73, 2, 74, 1),
    Sketcher.Constraint("Coincident", 74, 2, 75, 1),
    Sketcher.Constraint("Coincident", 75, 2, 0, 1),
    Sketcher.Constraint("Vertical", 2),
    Sketcher.Constraint("Horizontal", 4),
    Sketcher.Constraint("Vertical", 5),
    Sketcher.Constraint("Horizontal", 6),
    Sketcher.Constraint("Vertical", 7),
    Sketcher.Constraint("Horizontal", 8),
    Sketcher.Constraint("Vertical", 9),
    Sketcher.Constraint("Horizontal", 11),
    Sketcher.Constraint("Vertical", 12),
    Sketcher.Constraint("Horizontal", 13),
    Sketcher.Constraint("Vertical", 14),
    Sketcher.Constraint("Horizontal", 15),
    Sketcher.Constraint("Vertical", 16),
    Sketcher.Constraint("Horizontal", 18),
    Sketcher.Constraint("Horizontal", 21),
    Sketcher.Constraint("Vertical", 23),
    Sketcher.Constraint("Horizontal", 24),
    Sketcher.Constraint("Vertical", 25),
    Sketcher.Constraint("Horizontal", 26),
    Sketcher.Constraint("Vertical", 27),
    Sketcher.Constraint("Horizontal", 28),
    Sketcher.Constraint("Vertical", 30),
    Sketcher.Constraint("Horizontal", 31),
    Sketcher.Constraint("Vertical", 32),
    Sketcher.Constraint("Horizontal", 33),
    Sketcher.Constraint("Vertical", 34),
    Sketcher.Constraint("Horizontal", 35),
    Sketcher.Constraint("Vertical", 37),
    Sketcher.Constraint("Vertical", 40),
    Sketcher.Constraint("Horizontal", 42),
    Sketcher.Constraint("Vertical", 43),
    Sketcher.Constraint("Horizontal", 44),
    Sketcher.Constraint("Vertical", 45),
    Sketcher.Constraint("Horizontal", 46),
    Sketcher.Constraint("Vertical", 47),
    Sketcher.Constraint("Horizontal", 49),
    Sketcher.Constraint("Vertical", 50),
    Sketcher.Constraint("Horizontal", 51),
    Sketcher.Constraint("Vertical", 52),
    Sketcher.Constraint("Horizontal", 53),
    Sketcher.Constraint("Vertical", 54),
    Sketcher.Constraint("Horizontal", 56),
    Sketcher.Constraint("Horizontal", 59),
    Sketcher.Constraint("Vertical", 61),
    Sketcher.Constraint("Horizontal", 62),
    Sketcher.Constraint("Vertical", 63),
    Sketcher.Constraint("Horizontal", 64),
    Sketcher.Constraint("Vertical", 65),
    Sketcher.Constraint("Horizontal", 66),
    Sketcher.Constraint("Vertical", 68),
    Sketcher.Constraint("Horizontal", 69),
    Sketcher.Constraint("Vertical", 70),
    Sketcher.Constraint("Horizontal", 71),
    Sketcher.Constraint("Vertical", 72),
    Sketcher.Constraint("Horizontal", 73),
    Sketcher.Constraint("Vertical", 75),
    Sketcher.Constraint("Equal", 10, 29),
    Sketcher.Constraint("Equal", 29, 48),
    Sketcher.Constraint("Equal", 48, 67),
    Sketcher.Constraint("Symmetric", 10, 3, 48, 3, -1, 1),
    Sketcher.Constraint("Symmetric", 29, 3, 67, 3, -1, 1),
    Sketcher.Constraint("Symmetric", 0, 2, 38, 2, -1, 1),
    Sketcher.Constraint("Symmetric", 1, 2, 39, 2, -1, 1),
    Sketcher.Constraint("Symmetric", 3, 2, 41, 2, -1, 1),
    Sketcher.Constraint("Symmetric", 5, 2, 43, 2, -1, 1),
    Sketcher.Constraint("Symmetric", 7, 2, 45, 2, -1, 1),
    Sketcher.Constraint("Symmetric", 12, 2, 50, 2, -1, 1),
    Sketcher.Constraint("Symmetric", 14, 2, 52, 2, -1, 1),
    Sketcher.Constraint("Symmetric", 16, 2, 54, 2, -1, 1),
    Sketcher.Constraint("Symmetric", 17, 2, 55, 2, -1, 1),
    Sketcher.Constraint("Symmetric", 19, 2, 57, 2, -1, 1),
    Sketcher.Constraint("Symmetric", 20, 2, 58, 2, -1, 1),
    Sketcher.Constraint("Symmetric", 22, 2, 60, 2, -1, 1),
    Sketcher.Constraint("Symmetric", 24, 2, 62, 2, -1, 1),
    Sketcher.Constraint("Symmetric", 26, 2, 64, 2, -1, 1),
    Sketcher.Constraint("Symmetric", 31, 2, 69, 2, -1, 1),
    Sketcher.Constraint("Symmetric", 33, 2, 71, 2, -1, 1),
    Sketcher.Constraint("Symmetric", 35, 2, 73, 2, -1, 1),
    Sketcher.Constraint("Symmetric", 36, 2, 74, 2, -1, 1),
    Sketcher.Constraint("Symmetric", 10, 3, 29, 3, -2),
    Sketcher.Constraint("Symmetric", 18, 2, 20, 2, -2),
    Sketcher.Constraint("Symmetric", 16, 2, 22, 2, -2),
    Sketcher.Constraint("Symmetric", 14, 2, 24, 2, -2),
    Sketcher.Constraint("Symmetric", 12, 2, 26, 2, -2),
    Sketcher.Constraint("Symmetric", 7, 2, 31, 2, -2),
    Sketcher.Constraint("Symmetric", 5, 2, 33, 2, -2),
    Sketcher.Constraint("Symmetric", 3, 2, 35, 2, -2),
    Sketcher.Constraint("Symmetric", 2, 2, 36, 2, -2),
    Sketcher.Constraint("PointOnObject", 0, 2, -1),
    Sketcher.Constraint("PointOnObject", 19, 2, -2),
    Sketcher.Constraint("Parallel", 3, 17),
    Sketcher.Constraint("Perpendicular", 0, 19),
    Sketcher.Constraint("Perpendicular", 1, 20),
    Sketcher.Constraint("Perpendicular", 17, 22),
    Sketcher.Constraint("Parallel", 22, 36),
    Sketcher.Constraint("Perpendicular", 19, 38),
    Sketcher.Constraint("Perpendicular", 36, 41),
    Sketcher.Constraint("Perpendicular", 38, 57),
    Sketcher.Constraint("Perpendicular", 55, 60),
    Sketcher.Constraint("Horizontal", 9, 2, 14, 2),
    Sketcher.Constraint("Vertical", 67, 3, 4, 2),
    Sketcher.Constraint("Equal", 8, 13),
    Sketcher.Constraint("Equal", 59, 2),
    Sketcher.Constraint("Equal", 62, 5),
    Sketcher.Constraint("Equal", 69, 7),
    Sketcher.Constraint("Equal", 66, 9),
    Sketcher.Constraint("Equal", 7, 12),
    Sketcher.Constraint("Equal", 73, 16),
    Sketcher.Constraint("Equal", 3, 17),
    Sketcher.Constraint("Equal", 1, 19),
    Sketcher.Constraint("Radius", 10, 1.5),
    Sketcher.Constraint("DistanceX", 6, 2, 6, 1, 1.0),
    Sketcher.Constraint("DistanceX", 11, 1, 11, 2, 5.0),
    Sketcher.Constraint("DistanceX", 15, 2, 15, 1, 3.0),
    Sketcher.Constraint("Angle", 0, Q("-60 deg")),
    Sketcher.Constraint("Distance", 0, 1.0),
    Sketcher.Constraint("DistanceX", 0, 2, -1, 1, 4.0),
    Sketcher.Constraint("DistanceY", 3, 2, -1, 1, 6.0),
    Sketcher.Constraint("DistanceX", 4, 2, 4, 1, 1.43934),
])
pad4 = doc.addObject("PartDesign::Pad", "Pad003")
body.addObject(pad4)
pad4.Profile = sketch4
pad4.Type = "TwoLengths"
pad4.Length = 5
pad4.Length2 = 5

doc.recompute()
